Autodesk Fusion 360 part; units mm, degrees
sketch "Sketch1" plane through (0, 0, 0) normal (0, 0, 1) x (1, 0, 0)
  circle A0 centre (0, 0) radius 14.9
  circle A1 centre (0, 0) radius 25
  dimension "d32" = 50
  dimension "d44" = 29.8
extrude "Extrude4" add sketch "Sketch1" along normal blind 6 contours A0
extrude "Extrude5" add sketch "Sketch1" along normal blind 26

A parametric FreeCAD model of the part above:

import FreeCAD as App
import Part
import Sketcher

V = App.Vector
Q = App.Units.Quantity

doc = App.newDocument("Part")
body = doc.addObject("PartDesign::Body", "Body")

sketch1 = body.newObject("Sketcher::SketchObject", "Sketch")
sketch1.AttachmentSupport = (doc.getObject("XY_Plane"), [""])
sketch1.MapMode = "FlatFace"
sketch1.addGeometry(Part.Circle(V(0, 0, 0), V(0, 0, 1), 15), False)
sketch1.addConstraint([
    Sketcher.Constraint("Coincident", 0, 3, -1, 1),
    Sketcher.Constraint("Diameter", 0, Q("29.8 mm")),
])
pad1 = body.newObject("PartDesign::Pad", "Pad")
pad1.Profile = sketch1
pad1.Length = 6

sketch2 = body.newObject("Sketcher::SketchObject", "Sketch001")
sketch2.AttachmentSupport = (doc.getObject("XY_Plane"), [""])
sketch2.MapMode = "FlatFace"
sketch2.addGeometry([
    Part.Circle(V(0, 0, 0), V(0, 0, 1), 25),
    Part.Circle(V(0, 0, 0), V(0, 0, 1), 15),
], False)
sketch2.addConstraint([
    Sketcher.Constraint("Coincident", 0, 3, -1, 1),
    Sketcher.Constraint("Coincident", 1, 3, -1, 1),
    Sketcher.Constraint("Diameter", 0, Q("50 mm")),
    Sketcher.Constraint("Diameter", 1, Q("29.8 mm")),
])
pad2 = body.newObject("PartDesign::Pad", "Pad001")
pad2.Profile = sketch2
pad2.Length = 26

doc.recompute()
